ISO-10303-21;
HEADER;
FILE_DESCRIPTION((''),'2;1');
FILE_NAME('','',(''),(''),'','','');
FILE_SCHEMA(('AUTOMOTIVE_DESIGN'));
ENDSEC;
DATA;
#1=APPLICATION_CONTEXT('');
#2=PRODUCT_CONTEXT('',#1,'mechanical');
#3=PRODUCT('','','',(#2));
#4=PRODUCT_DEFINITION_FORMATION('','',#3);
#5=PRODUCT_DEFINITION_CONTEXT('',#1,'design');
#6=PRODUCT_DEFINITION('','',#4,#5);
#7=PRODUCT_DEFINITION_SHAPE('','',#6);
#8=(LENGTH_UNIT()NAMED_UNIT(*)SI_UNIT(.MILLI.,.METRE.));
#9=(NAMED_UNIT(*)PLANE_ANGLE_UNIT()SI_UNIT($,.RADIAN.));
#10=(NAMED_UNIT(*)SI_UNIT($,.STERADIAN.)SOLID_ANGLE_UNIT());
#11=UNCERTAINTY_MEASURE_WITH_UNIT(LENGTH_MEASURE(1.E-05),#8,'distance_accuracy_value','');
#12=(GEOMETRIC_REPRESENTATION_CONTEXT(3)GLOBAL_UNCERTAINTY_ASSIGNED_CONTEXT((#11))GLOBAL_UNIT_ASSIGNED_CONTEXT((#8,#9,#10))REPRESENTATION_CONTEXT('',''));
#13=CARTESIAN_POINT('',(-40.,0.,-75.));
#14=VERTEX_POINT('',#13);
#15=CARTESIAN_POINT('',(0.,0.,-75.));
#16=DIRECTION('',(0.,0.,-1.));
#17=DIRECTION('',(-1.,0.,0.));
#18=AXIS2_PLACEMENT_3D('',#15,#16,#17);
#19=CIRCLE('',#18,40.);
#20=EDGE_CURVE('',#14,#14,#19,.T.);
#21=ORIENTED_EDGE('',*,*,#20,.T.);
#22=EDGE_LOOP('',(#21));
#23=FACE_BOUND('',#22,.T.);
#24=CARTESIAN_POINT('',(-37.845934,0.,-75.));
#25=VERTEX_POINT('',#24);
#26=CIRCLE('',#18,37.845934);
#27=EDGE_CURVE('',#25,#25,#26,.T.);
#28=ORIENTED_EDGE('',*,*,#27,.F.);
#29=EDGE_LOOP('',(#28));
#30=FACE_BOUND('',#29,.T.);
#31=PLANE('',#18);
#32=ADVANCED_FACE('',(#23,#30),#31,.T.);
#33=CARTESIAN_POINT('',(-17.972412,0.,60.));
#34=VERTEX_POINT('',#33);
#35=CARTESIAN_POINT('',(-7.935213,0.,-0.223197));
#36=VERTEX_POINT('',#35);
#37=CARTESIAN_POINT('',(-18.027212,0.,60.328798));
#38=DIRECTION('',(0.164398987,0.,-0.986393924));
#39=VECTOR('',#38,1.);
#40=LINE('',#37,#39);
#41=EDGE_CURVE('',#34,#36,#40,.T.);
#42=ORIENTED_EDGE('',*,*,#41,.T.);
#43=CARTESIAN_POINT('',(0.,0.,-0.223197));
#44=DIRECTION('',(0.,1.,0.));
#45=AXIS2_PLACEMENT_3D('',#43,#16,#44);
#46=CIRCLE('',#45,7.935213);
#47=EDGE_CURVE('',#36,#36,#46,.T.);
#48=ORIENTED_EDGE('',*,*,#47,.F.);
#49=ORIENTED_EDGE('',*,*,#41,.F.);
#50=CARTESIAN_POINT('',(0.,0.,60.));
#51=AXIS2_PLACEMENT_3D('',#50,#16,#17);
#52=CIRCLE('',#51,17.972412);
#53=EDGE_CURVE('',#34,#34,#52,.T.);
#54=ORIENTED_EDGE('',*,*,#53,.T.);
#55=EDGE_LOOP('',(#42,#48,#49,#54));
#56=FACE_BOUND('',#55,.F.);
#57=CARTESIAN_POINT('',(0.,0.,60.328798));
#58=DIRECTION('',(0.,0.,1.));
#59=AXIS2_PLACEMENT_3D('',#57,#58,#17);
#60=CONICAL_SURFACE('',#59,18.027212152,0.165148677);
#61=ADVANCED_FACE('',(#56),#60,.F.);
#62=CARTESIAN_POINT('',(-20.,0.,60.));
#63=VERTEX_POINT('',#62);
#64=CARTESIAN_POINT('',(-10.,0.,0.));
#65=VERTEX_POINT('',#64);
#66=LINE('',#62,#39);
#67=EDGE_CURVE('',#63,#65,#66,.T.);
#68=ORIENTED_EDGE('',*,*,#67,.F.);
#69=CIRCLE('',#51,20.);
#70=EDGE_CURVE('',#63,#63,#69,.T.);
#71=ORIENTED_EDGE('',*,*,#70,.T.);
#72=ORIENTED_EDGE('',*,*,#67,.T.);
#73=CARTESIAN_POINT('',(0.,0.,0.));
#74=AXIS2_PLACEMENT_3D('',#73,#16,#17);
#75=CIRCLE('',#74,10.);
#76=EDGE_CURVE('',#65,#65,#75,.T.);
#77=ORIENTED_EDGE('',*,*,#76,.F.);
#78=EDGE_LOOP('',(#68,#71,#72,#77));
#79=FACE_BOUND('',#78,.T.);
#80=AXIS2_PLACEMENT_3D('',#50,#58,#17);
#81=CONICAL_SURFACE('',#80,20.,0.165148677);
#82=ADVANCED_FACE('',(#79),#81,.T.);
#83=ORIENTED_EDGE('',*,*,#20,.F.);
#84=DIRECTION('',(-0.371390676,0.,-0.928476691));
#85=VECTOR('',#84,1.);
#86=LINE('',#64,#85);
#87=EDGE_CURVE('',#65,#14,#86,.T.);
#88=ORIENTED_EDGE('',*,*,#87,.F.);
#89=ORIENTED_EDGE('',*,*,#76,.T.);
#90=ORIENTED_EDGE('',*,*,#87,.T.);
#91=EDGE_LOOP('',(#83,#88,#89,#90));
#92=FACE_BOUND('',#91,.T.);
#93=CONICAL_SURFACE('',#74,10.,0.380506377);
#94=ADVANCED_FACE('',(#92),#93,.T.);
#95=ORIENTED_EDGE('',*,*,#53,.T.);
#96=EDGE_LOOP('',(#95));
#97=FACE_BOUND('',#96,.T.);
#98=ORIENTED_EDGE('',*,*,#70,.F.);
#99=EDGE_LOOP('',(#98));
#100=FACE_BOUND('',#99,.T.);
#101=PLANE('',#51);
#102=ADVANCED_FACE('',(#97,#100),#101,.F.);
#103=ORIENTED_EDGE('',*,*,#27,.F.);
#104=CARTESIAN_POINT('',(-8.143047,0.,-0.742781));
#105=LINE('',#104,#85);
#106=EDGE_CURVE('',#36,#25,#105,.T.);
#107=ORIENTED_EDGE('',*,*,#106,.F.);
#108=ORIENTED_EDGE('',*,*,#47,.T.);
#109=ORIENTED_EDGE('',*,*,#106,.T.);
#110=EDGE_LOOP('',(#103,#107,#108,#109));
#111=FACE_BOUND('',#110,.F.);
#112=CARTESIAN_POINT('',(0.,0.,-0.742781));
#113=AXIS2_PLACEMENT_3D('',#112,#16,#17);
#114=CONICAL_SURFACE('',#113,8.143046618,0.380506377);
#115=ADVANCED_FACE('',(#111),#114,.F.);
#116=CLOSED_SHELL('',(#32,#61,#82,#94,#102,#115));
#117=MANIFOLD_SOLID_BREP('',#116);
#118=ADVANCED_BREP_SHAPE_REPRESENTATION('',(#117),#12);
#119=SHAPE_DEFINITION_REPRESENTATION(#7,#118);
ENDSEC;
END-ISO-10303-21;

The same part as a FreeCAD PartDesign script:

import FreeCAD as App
import Part
import Sketcher
from FreeCAD import Vector
Q = App.Units.Quantity


def faces_at(feature, points):
    """Names of the faces that lie closest to the given points."""
    faces = feature.Shape.Faces
    near = lambda p: min(range(len(faces)), key=lambda i: faces[i].distToShape(Part.Vertex(*p))[0])
    return sorted({f"Face{near(p) + 1}" for p in points})

doc = App.newDocument("Part")
body = doc.addObject("PartDesign::Body", "Body")

# Sketch on XZ plane
sketch1 = body.newObject("Sketcher::SketchObject", "Sketch")
sketch1.AttachmentSupport = (doc.getObject("XZ_Plane"), [""])
sketch1.MapMode = "FlatFace"
sketch1.addGeometry([
    Part.LineSegment(Vector(0, 60, 0), Vector(-20, 60, 0)),  # 0
    Part.LineSegment(Vector(-20, 60, 0), Vector(-10, 0, 0)),  # 1
    Part.LineSegment(Vector(-10, 0, 0), Vector(-40, -75, 0)),  # 2
    Part.LineSegment(Vector(-40, -75, 0), Vector(0, -75, 0)),  # 3
    Part.LineSegment(Vector(0, -75, 0), Vector(0, 60, 0)),  # 4
], False)
sketch1.addConstraint([
    Sketcher.Constraint("Coincident", 0, 2, 1, 1),
    Sketcher.Constraint("Coincident", 1, 2, 2, 1),
    Sketcher.Constraint("Coincident", 2, 2, 3, 1),
    Sketcher.Constraint("Coincident", 3, 2, 4, 1),
    Sketcher.Constraint("Coincident", 4, 2, 0, 1),
    Sketcher.Constraint("Horizontal", 0),
    Sketcher.Constraint("Horizontal", 3),
    Sketcher.Constraint("Vertical", 4),
    Sketcher.Constraint("PointOnObject", 1, 2, -1),
    Sketcher.Constraint("PointOnObject", 3, 2, -2),
    Sketcher.Constraint("DistanceX", 0, 2, 0, 1, Q("20 mm")),
    Sketcher.Constraint("DistanceX", 3, 1, 3, 2, Q("40 mm")),
    Sketcher.Constraint("DistanceY", 4, 1, 4, 2, Q("135 mm")),
    Sketcher.Constraint("DistanceY", -1, 1, 0, 2, Q("60 mm")),
    Sketcher.Constraint("DistanceX", 1, 2, -1, 1, Q("10 mm")),
])
revolution = body.newObject("PartDesign::Revolution", "Revolution")
revolution.Profile = sketch1
revolution.ReferenceAxis = (sketch1, ["V_Axis"])
revolution.Angle = 360
doc.recompute()

thickness = body.newObject("PartDesign::Thickness", "Thickness")
thickness.Base = (revolution, faces_at(revolution, [(0, 0, -75), (0, 0, 60)]))
thickness.Value = 2
thickness.Reversed = True
thickness.Join = "Intersection"

doc.recompute()
